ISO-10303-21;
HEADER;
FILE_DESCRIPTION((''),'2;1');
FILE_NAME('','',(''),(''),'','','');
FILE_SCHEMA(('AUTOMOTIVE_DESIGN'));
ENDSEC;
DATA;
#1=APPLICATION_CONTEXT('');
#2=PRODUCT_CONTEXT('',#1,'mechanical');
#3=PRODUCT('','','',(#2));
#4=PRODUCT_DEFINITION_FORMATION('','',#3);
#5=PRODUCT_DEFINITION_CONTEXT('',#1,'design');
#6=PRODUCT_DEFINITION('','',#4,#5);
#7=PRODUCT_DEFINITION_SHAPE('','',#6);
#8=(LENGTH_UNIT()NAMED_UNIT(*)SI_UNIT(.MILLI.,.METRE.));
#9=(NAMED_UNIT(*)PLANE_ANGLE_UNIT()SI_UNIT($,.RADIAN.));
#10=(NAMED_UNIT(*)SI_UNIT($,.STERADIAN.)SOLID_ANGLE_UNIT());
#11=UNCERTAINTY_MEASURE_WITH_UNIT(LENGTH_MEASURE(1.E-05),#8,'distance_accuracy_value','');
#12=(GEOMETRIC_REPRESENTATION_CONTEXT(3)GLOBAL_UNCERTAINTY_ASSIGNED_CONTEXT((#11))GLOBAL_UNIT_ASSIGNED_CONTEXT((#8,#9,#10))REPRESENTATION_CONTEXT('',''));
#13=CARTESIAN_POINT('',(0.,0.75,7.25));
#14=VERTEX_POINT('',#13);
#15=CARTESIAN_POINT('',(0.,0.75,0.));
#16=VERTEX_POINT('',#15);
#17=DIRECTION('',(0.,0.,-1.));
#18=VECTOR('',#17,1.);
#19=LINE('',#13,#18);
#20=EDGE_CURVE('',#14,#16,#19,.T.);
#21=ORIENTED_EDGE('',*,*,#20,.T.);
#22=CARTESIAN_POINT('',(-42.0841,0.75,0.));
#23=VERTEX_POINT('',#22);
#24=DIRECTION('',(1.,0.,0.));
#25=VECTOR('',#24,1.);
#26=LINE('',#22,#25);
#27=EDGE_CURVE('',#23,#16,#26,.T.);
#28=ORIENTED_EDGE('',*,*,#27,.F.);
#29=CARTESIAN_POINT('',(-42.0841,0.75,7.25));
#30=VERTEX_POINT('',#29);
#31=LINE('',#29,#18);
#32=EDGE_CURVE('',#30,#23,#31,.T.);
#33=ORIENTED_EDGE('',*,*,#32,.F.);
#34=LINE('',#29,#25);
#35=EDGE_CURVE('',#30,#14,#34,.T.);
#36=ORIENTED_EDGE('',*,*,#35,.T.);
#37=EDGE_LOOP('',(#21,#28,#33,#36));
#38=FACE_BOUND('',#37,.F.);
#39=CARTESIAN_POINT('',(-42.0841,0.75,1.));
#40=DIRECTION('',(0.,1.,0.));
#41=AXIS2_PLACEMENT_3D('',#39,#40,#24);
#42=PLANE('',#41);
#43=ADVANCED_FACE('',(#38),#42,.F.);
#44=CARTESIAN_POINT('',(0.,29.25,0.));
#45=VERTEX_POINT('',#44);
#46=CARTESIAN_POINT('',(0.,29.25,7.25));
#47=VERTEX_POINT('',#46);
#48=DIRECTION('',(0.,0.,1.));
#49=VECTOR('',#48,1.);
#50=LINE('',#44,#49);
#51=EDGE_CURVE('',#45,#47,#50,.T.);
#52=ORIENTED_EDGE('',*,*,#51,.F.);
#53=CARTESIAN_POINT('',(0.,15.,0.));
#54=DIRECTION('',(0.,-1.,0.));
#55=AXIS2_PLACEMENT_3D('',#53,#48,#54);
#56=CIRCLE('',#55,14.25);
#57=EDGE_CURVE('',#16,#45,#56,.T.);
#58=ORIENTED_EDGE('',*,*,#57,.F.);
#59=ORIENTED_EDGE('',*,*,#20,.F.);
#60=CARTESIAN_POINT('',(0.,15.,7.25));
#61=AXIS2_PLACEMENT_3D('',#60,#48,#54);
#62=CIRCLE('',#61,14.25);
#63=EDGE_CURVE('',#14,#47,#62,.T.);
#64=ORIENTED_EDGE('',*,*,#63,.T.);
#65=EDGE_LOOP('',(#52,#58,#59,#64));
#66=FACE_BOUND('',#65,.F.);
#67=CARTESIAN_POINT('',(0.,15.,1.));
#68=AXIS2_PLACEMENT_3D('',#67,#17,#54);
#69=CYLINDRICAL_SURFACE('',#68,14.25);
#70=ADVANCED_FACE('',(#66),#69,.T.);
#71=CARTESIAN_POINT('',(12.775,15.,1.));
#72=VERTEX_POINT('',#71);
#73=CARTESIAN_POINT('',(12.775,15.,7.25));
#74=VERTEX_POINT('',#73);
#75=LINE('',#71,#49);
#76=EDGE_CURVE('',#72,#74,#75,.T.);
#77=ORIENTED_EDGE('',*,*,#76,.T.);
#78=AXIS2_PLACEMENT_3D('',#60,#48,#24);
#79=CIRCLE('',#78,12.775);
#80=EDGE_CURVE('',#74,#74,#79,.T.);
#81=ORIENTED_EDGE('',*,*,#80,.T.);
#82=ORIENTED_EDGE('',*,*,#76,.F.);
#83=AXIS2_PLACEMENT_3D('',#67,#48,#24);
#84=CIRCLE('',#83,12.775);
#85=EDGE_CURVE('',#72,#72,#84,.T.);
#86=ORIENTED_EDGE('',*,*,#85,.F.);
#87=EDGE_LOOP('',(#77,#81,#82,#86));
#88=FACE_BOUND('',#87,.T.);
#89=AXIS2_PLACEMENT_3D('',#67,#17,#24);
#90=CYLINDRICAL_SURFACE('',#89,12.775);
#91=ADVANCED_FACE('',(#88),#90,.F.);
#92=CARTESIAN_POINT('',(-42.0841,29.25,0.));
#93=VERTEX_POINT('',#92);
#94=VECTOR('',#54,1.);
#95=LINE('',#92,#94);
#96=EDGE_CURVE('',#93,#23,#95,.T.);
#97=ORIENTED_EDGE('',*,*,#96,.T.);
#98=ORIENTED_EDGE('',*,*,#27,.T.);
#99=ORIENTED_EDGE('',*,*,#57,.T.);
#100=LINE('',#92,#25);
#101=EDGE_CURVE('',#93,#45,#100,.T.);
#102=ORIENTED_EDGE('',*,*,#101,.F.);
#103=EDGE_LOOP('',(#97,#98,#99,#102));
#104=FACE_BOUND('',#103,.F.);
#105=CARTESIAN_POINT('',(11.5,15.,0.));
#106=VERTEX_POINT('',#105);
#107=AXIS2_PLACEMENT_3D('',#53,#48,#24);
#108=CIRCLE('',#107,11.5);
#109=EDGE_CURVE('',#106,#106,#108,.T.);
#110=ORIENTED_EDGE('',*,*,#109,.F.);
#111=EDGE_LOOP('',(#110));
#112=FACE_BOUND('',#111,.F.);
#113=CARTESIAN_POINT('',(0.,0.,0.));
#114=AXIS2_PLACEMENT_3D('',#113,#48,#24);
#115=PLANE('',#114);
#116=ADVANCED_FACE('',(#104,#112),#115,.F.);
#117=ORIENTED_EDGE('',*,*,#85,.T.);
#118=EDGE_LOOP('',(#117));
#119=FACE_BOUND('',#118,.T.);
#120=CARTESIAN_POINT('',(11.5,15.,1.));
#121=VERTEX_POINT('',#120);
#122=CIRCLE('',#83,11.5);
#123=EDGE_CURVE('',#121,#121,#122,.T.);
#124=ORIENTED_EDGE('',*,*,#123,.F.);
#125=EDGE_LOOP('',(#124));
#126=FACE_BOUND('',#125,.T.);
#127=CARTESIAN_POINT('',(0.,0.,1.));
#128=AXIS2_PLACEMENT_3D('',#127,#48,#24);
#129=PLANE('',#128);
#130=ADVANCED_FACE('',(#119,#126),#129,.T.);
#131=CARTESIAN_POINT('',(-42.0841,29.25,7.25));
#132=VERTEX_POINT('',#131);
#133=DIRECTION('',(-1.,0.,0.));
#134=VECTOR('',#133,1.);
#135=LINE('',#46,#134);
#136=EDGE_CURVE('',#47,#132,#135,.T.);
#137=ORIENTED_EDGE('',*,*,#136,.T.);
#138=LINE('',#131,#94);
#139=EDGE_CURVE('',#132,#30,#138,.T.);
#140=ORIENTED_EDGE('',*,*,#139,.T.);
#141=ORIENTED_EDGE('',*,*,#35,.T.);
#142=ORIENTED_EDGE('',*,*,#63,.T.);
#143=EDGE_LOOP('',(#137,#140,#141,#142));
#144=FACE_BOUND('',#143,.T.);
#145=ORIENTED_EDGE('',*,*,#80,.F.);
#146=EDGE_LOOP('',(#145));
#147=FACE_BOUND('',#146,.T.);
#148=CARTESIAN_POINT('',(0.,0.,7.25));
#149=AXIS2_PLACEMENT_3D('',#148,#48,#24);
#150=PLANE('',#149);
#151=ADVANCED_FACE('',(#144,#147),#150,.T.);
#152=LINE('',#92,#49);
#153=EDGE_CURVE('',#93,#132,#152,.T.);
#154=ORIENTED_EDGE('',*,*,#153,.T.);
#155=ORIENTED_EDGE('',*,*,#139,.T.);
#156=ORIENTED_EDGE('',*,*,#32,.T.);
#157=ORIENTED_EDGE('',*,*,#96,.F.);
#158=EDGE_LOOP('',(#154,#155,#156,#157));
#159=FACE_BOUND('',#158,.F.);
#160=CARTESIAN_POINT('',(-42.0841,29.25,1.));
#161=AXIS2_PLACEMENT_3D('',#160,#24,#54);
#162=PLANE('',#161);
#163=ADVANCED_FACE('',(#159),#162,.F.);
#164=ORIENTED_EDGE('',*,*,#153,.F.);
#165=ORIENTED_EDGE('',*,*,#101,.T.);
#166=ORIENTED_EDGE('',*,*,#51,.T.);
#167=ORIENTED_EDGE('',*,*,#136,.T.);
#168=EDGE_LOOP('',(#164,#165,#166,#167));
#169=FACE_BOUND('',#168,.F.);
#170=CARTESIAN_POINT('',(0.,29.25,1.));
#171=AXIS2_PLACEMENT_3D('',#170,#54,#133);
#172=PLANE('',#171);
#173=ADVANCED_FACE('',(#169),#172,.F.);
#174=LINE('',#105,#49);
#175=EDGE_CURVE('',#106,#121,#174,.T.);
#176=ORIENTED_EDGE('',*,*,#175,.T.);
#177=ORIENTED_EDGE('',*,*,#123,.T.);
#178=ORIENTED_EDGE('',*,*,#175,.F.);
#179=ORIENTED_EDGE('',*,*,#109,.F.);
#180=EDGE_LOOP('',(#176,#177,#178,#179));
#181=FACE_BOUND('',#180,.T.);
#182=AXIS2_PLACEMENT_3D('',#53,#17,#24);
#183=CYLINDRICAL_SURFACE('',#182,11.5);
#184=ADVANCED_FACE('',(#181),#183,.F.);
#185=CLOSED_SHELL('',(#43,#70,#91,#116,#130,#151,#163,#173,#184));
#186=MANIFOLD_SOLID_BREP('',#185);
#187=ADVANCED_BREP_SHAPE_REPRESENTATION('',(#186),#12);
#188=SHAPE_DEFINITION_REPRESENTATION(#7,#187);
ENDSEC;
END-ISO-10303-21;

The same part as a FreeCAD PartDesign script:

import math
import FreeCAD as App
import Part
import Sketcher

V = App.Vector
Q = App.Units.Quantity

doc = App.newDocument("Part")
body = doc.addObject("PartDesign::Body", "Body")

sketch1 = doc.addObject("Sketcher::SketchObject", "Sketch")
body.addObject(sketch1)
sketch1.AttachmentSupport = (doc.XY_Plane, [""])
sketch1.MapMode = "FlatFace"
sketch1.addGeometry(Part.LineSegment(V(0, 29, 0), V(-42, 29, 0)), False)
sketch1.addGeometry(Part.LineSegment(V(-42, 29, 0), V(-42, 1, 0)), False)
sketch1.addGeometry(Part.LineSegment(V(-42, 1, 0), V(0, 1, 0)), False)
sketch1.addGeometry(Part.ArcOfCircle(Part.Circle(V(0, 15, 0), V(0, 0, 1), 14), math.radians(-90), math.radians(90)), False)
sketch1.addGeometry(Part.Circle(V(0, 15, 0), V(0, 0, 1), 12), False)
sketch1.addConstraint(Sketcher.Constraint("Coincident", 0, 2, 1, 1))
sketch1.addConstraint(Sketcher.Constraint("Coincident", 1, 2, 2, 1))
sketch1.addConstraint(Sketcher.Constraint("Tangent", 2, 2, 3, 1))
sketch1.addConstraint(Sketcher.Constraint("Tangent", 3, 2, 0, 1))
sketch1.addConstraint(Sketcher.Constraint("Horizontal", 0))
sketch1.addConstraint(Sketcher.Constraint("Vertical", 1))
sketch1.addConstraint(Sketcher.Constraint("Horizontal", 2))
sketch1.addConstraint(Sketcher.Constraint("Coincident", 4, 3, 3, 3))
sketch1.addConstraint(Sketcher.Constraint("PointOnObject", 3, 3, -2))
sketch1.addConstraint(Sketcher.Constraint("Diameter", 4, Q("23 mm")))
sketch1.addConstraint(Sketcher.Constraint("DistanceY", -1, 1, 1, 2, Q("0.75 mm")))
sketch1.addConstraint(Sketcher.Constraint("Radius", 3, Q("14.25 mm")))
sketch1.addConstraint(Sketcher.Constraint("DistanceX", 0, 2, 0, 1, Q("42.084 mm")))
pad1 = doc.addObject("PartDesign::Pad", "Pad")
body.addObject(pad1)
pad1.Profile = sketch1
pad1.Length = 1

sketch2 = doc.addObject("Sketcher::SketchObject", "Sketch001")
body.addObject(sketch2)
sketch2.AttachmentSupport = (doc.XY_Plane, [""])
sketch2.MapMode = "FlatFace"
sketch2.AttachmentOffset = App.Placement(V(0, 0, 1), App.Rotation())
sketch2.addGeometry(Part.ArcOfCircle(Part.Circle(V(0, 15, 0), V(0, 0, 1), 14), math.radians(-90), math.radians(90)), False)
sketch2.addGeometry(Part.LineSegment(V(0, 29, 0), V(-42, 29, 0)), False)
sketch2.addGeometry(Part.LineSegment(V(-42, 29, 0), V(-42, 1, 0)), False)
sketch2.addGeometry(Part.LineSegment(V(-42, 1, 0), V(0, 1, 0)), False)
sketch2.addGeometry(Part.Circle(V(0, 15, 0), V(0, 0, 1), 13), False)
sketch2.addConstraint(Sketcher.Constraint("Tangent", 0, 2, 1, 1))
sketch2.addConstraint(Sketcher.Constraint("Coincident", 1, 2, 2, 1))
sketch2.addConstraint(Sketcher.Constraint("Coincident", 2, 2, 3, 1))
sketch2.addConstraint(Sketcher.Constraint("Tangent", 3, 2, 0, 1))
sketch2.addConstraint(Sketcher.Constraint("Horizontal", 1))
sketch2.addConstraint(Sketcher.Constraint("Vertical", 2))
sketch2.addConstraint(Sketcher.Constraint("Horizontal", 3))
sketch2.addConstraint(Sketcher.Constraint("Coincident", 4, 3, 0, 3))
sketch2.addConstraint(Sketcher.Constraint("PointOnObject", 0, 3, -2))
sketch2.addConstraint(Sketcher.Constraint("Diameter", 4, Q("25.55 mm")))
sketch2.addConstraint(Sketcher.Constraint("Radius", 0, Q("14.25 mm")))
sketch2.addConstraint(Sketcher.Constraint("DistanceY", -1, 1, 0, 3, Q("15 mm")))
sketch2.addConstraint(Sketcher.Constraint("DistanceX", 1, 2, 1, 1, Q("42.084 mm")))
pad2 = doc.addObject("PartDesign::Pad", "Pad001")
body.addObject(pad2)
pad2.Profile = sketch2
pad2.Length = 6.25

doc.recompute()
